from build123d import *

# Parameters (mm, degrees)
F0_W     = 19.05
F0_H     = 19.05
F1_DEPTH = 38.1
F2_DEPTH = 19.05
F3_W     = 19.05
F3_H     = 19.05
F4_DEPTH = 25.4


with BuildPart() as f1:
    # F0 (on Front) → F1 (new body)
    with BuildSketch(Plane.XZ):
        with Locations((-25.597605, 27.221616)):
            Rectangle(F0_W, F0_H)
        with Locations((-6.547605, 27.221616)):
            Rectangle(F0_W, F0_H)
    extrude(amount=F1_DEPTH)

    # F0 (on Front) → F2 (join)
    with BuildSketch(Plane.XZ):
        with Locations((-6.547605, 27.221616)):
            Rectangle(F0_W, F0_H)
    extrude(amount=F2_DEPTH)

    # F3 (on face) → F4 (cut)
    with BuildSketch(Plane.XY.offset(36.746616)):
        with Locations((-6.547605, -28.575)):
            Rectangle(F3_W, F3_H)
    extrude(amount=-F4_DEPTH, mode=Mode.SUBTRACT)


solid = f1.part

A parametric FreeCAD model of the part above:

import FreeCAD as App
import Part
import Sketcher

V = App.Vector
Q = App.Units.Quantity

doc = App.newDocument("Part")
body = doc.addObject("PartDesign::Body", "Body")

# Sketch on XZ plane
sketch1 = body.newObject("Sketcher::SketchObject", "Sketch")
sketch1.AttachmentSupport = (doc.getObject("XZ_Plane"), [""])
sketch1.MapMode = "FlatFace"
sketch1.addGeometry([
    Part.LineSegment(V(-35, 37, 0), V(-35, 18, 0)),
    Part.LineSegment(V(-35, 18, 0), V(3, 18, 0)),
    Part.LineSegment(V(3, 18, 0), V(3, 37, 0)),
    Part.LineSegment(V(3, 37, 0), V(-35, 37, 0)),
], False)
sketch1.addConstraint([
    Sketcher.Constraint("Coincident", 0, 2, 1, 1),
    Sketcher.Constraint("Coincident", 1, 2, 2, 1),
    Sketcher.Constraint("Coincident", 2, 2, 3, 1),
    Sketcher.Constraint("Coincident", 3, 2, 0, 1),
    Sketcher.Constraint("Vertical", 0),
    Sketcher.Constraint("Horizontal", 1),
    Sketcher.Constraint("Vertical", 2),
    Sketcher.Constraint("Horizontal", 3),
    Sketcher.Constraint("DistanceX", 1, 1, 1, 2, Q("1.5 in")),
    Sketcher.Constraint("DistanceY", 0, 2, 0, 1, Q("0.75 in")),
    Sketcher.Constraint("DistanceX", 0, 2, -1, 1, 35.122605),
    Sketcher.Constraint("DistanceY", -1, 1, 0, 2, 17.696616),
])
pad1 = body.newObject("PartDesign::Pad", "Pad")
pad1.Profile = sketch1
pad1.Length = Q("1.5 in")

# Sketch on XZ plane
sketch2 = body.newObject("Sketcher::SketchObject", "Sketch001")
sketch2.AttachmentSupport = (doc.getObject("XZ_Plane"), [""])
sketch2.MapMode = "FlatFace"
sketch2.addGeometry([
    Part.LineSegment(V(-16, 37, 0), V(-16, 18, 0)),
    Part.LineSegment(V(-16, 18, 0), V(3, 18, 0)),
    Part.LineSegment(V(3, 18, 0), V(3, 37, 0)),
    Part.LineSegment(V(3, 37, 0), V(-16, 37, 0)),
], False)
sketch2.addConstraint([
    Sketcher.Constraint("Coincident", 0, 2, 1, 1),
    Sketcher.Constraint("Coincident", 1, 2, 2, 1),
    Sketcher.Constraint("Coincident", 2, 2, 3, 1),
    Sketcher.Constraint("Coincident", 3, 2, 0, 1),
    Sketcher.Constraint("Vertical", 0),
    Sketcher.Constraint("Horizontal", 1),
    Sketcher.Constraint("Vertical", 2),
    Sketcher.Constraint("Horizontal", 3),
    Sketcher.Constraint("Equal", 3, 0),
    Sketcher.Constraint("DistanceX", 1, 1, 1, 2, Q("0.75 in")),
    Sketcher.Constraint("DistanceX", 0, 2, -1, 1, 16.072605),
    Sketcher.Constraint("DistanceY", -1, 1, 0, 2, 17.696616),
])
pad2 = body.newObject("PartDesign::Pad", "Pad001")
pad2.Profile = sketch2
pad2.Length = Q("0.75 in")

# Sketch on XY plane
sketch3 = body.newObject("Sketcher::SketchObject", "Sketch002")
sketch3.AttachmentSupport = (doc.getObject("XY_Plane"), [""])
sketch3.MapMode = "FlatFace"
sketch3.AttachmentOffset = App.Placement(V(0, 0, 36.746616), App.Rotation())
sketch3.addGeometry([
    Part.LineSegment(V(-16, -19, 0), V(-16, -38, 0)),
    Part.LineSegment(V(-16, -38, 0), V(3, -38, 0)),
    Part.LineSegment(V(3, -38, 0), V(3, -19, 0)),
    Part.LineSegment(V(3, -19, 0), V(-16, -19, 0)),
], False)
sketch3.addConstraint([
    Sketcher.Constraint("Coincident", 0, 2, 1, 1),
    Sketcher.Constraint("Coincident", 1, 2, 2, 1),
    Sketcher.Constraint("Coincident", 2, 2, 3, 1),
    Sketcher.Constraint("Coincident", 3, 2, 0, 1),
    Sketcher.Constraint("Vertical", 0),
    Sketcher.Constraint("Horizontal", 1),
    Sketcher.Constraint("Vertical", 2),
    Sketcher.Constraint("Horizontal", 3),
    Sketcher.Constraint("Equal", 3, 0),
    Sketcher.Constraint("DistanceX", 1, 1, 1, 2, Q("0.75 in")),
    Sketcher.Constraint("DistanceY", 0, 2, -1, 1, Q("1.5 in")),
    Sketcher.Constraint("DistanceX", 0, 2, -1, 1, 16.072605),
])
pocket1 = body.newObject("PartDesign::Pocket", "Pocket")
pocket1.Profile = sketch3
pocket1.Length = Q("1 in")

doc.recompute()
